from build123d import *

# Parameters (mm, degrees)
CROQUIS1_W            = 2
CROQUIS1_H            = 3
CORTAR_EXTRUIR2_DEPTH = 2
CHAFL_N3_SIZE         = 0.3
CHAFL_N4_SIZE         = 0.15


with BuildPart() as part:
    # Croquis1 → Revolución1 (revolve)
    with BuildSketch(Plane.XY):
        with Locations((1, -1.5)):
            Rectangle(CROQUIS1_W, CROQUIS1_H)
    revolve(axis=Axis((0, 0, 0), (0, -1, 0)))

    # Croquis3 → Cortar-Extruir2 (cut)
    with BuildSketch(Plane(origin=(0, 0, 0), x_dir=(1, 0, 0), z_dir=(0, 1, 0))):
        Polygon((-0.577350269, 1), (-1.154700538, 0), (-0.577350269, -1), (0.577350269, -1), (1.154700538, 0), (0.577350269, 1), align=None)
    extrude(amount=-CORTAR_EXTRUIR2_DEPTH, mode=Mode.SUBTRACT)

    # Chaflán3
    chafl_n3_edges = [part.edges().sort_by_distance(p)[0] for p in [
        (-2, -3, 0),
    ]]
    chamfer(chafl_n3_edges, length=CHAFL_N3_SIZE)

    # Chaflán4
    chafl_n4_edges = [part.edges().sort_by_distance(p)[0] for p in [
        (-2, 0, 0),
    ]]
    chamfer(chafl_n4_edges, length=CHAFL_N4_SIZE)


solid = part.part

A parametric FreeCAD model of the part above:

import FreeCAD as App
import Part
import Sketcher

V = App.Vector
Q = App.Units.Quantity


def edges_at(feature, points):
    """Names of the edges that pass closest to the given points."""
    edges = feature.Shape.Edges
    near = lambda p: min(range(len(edges)), key=lambda i: edges[i].distToShape(Part.Vertex(*p))[0])
    return sorted({f"Edge{near(p) + 1}" for p in points})


def add_polygon(sketch, points):
    """Adds a closed chain of lines whose ends are joined by coincident constraints."""
    first, n = sketch.GeometryCount, len(points)
    for a, b in zip(points, points[1:] + points[:1]):
        sketch.addGeometry(Part.LineSegment(App.Vector(*a, 0), App.Vector(*b, 0)), False)
    for i in range(n):
        sketch.addConstraint(Sketcher.Constraint("Coincident", first + i, 2, first + (i + 1) % n, 1))

doc = App.newDocument("Part")
body = doc.addObject("PartDesign::Body", "Body")

sketch1 = body.newObject("Sketcher::SketchObject", "Sketch")
sketch1.AttachmentSupport = (doc.getObject("XY_Plane"), [""])
sketch1.MapMode = "FlatFace"
add_polygon(sketch1, [(0, 0), (0, -3), (2, -3), (2, 0)])
sketch1.addConstraint(Sketcher.Constraint("Vertical", 0))
sketch1.addConstraint(Sketcher.Constraint("Horizontal", 1))
sketch1.addConstraint(Sketcher.Constraint("Vertical", 2))
sketch1.addConstraint(Sketcher.Constraint("Horizontal", 3))
sketch1.addConstraint(Sketcher.Constraint("Coincident", 3, 2, -1, 1))
sketch1.addConstraint(Sketcher.Constraint("DistanceX", 1, 1, 1, 2, 2.0))
sketch1.addConstraint(Sketcher.Constraint("DistanceY", 0, 2, 0, 1, 3.0))
revolution = body.newObject("PartDesign::Revolution", "Revolution")
revolution.Profile = sketch1
revolution.ReferenceAxis = (sketch1, ["V_Axis"])
revolution.Angle = 360

sketch2 = body.newObject("Sketcher::SketchObject", "Sketch001")
sketch2.AttachmentSupport = (doc.getObject("XZ_Plane"), [""])
sketch2.MapMode = "FlatFace"
add_polygon(sketch2, [(-0.6, -1), (-1.2, 0), (-0.6, 1), (0.6, 1), (1.2, 0), (0.6, -1)])
sketch2.addConstraint(Sketcher.Constraint("Horizontal", 2))
sketch2.addConstraint(Sketcher.Constraint("Horizontal", 5))
sketch2.addConstraint(Sketcher.Constraint("Symmetric", 0, 2, 3, 2, -1, 1))
sketch2.addConstraint(Sketcher.Constraint("Symmetric", 1, 2, 4, 2, -1, 1))
sketch2.addConstraint(Sketcher.Constraint("PointOnObject", 0, 2, -1))
sketch2.addConstraint(Sketcher.Constraint("Parallel", 0, 3))
sketch2.addConstraint(Sketcher.Constraint("Vertical", 2, 2, 4, 2))
sketch2.addConstraint(Sketcher.Constraint("Angle", 0, Q("120 deg")))
sketch2.addConstraint(Sketcher.Constraint("DistanceY", -1, 1, 1, 2, 1.0))
sketch2.addConstraint(Sketcher.Constraint("DistanceX", 2, 1, 2, 2, 1.154701))
pocket1 = body.newObject("PartDesign::Pocket", "Pocket")
pocket1.Profile = sketch2
pocket1.Length = 2
pocket1.Reversed = True
doc.recompute()

chamfer = body.newObject("PartDesign::Chamfer", "Chamfer")
chamfer.Base = (pocket1, edges_at(pocket1, [(-2, -3, 0)]))
chamfer.Size = 0.3
doc.recompute()

chamfer2 = body.newObject("PartDesign::Chamfer", "Chamfer001")
chamfer2.Base = (chamfer, edges_at(chamfer, [(-2, 0, 0)]))
chamfer2.Size = 0.15

doc.recompute()
